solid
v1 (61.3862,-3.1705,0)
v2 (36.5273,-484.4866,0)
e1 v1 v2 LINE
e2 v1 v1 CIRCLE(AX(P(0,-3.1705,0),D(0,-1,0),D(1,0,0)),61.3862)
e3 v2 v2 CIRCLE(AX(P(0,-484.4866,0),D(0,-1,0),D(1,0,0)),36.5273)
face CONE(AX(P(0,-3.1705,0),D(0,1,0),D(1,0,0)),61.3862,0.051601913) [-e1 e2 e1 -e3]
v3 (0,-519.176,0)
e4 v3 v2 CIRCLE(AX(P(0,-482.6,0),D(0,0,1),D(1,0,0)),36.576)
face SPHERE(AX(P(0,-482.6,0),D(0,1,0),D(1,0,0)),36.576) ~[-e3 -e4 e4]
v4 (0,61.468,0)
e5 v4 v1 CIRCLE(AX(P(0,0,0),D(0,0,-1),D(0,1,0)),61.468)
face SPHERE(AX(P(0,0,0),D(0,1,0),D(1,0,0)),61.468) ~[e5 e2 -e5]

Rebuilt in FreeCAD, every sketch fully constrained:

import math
import FreeCAD as App
import Part
import Sketcher
from FreeCAD import Vector
Q = App.Units.Quantity

doc = App.newDocument("Part")
params = doc.addObject("Spreadsheet::Sheet", "Params")
for row, (alias, value) in enumerate([
    ("sketch1_radius", "2.42 in"),
    ("sketch1_radius2", "1.44 in"),
    ("revolution_angle", "360 deg"),
], start=1):
    params.set(f"A{row}", alias)
    params.set(f"B{row}", "=" + value)
    params.setAlias(f"B{row}", alias)

body = doc.addObject("PartDesign::Body", "Body")

# Sketch on XY plane
sketch1 = body.newObject("Sketcher::SketchObject", "Sketch")
sketch1.AttachmentSupport = (doc.getObject("XY_Plane"), [""])
sketch1.MapMode = "FlatFace"
sketch1.addGeometry(Part.ArcOfCircle(Part.Circle(Vector(0, 0, 0), Vector(0, 0, 1), 61), math.radians(-3), math.radians(90)), False)
sketch1.addGeometry(Part.LineSegment(Vector(0, 61, 0), Vector(0, -519, 0)), False)
sketch1.addGeometry(Part.ArcOfCircle(Part.Circle(Vector(0, -483, 0), Vector(0, 0, 1), 37), math.radians(-90), math.radians(-3)), False)
sketch1.addGeometry(Part.LineSegment(Vector(37, -484, 0), Vector(61, -3, 0)), False)
sketch1.addConstraint(Sketcher.Constraint("Coincident", 0, 2, 1, 1))
sketch1.addConstraint(Sketcher.Constraint("Coincident", 1, 2, 2, 1))
sketch1.addConstraint(Sketcher.Constraint("Tangent", 2, 2, 3, 1))
sketch1.addConstraint(Sketcher.Constraint("Tangent", 3, 2, 0, 1))
sketch1.addConstraint(Sketcher.Constraint("Vertical", 1))
sketch1.addConstraint(Sketcher.Constraint("Coincident", 0, 3, -1, 1))
sketch1.addConstraint(Sketcher.Constraint("PointOnObject", 2, 3, -2))
sketch1.addConstraint(Sketcher.Constraint("PointOnObject", 0, 2, -2))
sketch1.addConstraint(Sketcher.Constraint("Radius", 0, Q("2.42 in")))
sketch1.addConstraint(Sketcher.Constraint("Radius", 2, Q("1.44 in")))
sketch1.addConstraint(Sketcher.Constraint("DistanceY", 1, 2, -1, 1, Q("20.44 in")))
sketch1.setExpression("Constraints[8]", "Params.sketch1_radius")
sketch1.setExpression("Constraints[9]", "Params.sketch1_radius2")
revolution = body.newObject("PartDesign::Revolution", "Revolution")
revolution.Profile = sketch1
revolution.ReferenceAxis = (sketch1, ["V_Axis"])
revolution.setExpression("Angle", "Params.revolution_angle")

doc.recompute()
